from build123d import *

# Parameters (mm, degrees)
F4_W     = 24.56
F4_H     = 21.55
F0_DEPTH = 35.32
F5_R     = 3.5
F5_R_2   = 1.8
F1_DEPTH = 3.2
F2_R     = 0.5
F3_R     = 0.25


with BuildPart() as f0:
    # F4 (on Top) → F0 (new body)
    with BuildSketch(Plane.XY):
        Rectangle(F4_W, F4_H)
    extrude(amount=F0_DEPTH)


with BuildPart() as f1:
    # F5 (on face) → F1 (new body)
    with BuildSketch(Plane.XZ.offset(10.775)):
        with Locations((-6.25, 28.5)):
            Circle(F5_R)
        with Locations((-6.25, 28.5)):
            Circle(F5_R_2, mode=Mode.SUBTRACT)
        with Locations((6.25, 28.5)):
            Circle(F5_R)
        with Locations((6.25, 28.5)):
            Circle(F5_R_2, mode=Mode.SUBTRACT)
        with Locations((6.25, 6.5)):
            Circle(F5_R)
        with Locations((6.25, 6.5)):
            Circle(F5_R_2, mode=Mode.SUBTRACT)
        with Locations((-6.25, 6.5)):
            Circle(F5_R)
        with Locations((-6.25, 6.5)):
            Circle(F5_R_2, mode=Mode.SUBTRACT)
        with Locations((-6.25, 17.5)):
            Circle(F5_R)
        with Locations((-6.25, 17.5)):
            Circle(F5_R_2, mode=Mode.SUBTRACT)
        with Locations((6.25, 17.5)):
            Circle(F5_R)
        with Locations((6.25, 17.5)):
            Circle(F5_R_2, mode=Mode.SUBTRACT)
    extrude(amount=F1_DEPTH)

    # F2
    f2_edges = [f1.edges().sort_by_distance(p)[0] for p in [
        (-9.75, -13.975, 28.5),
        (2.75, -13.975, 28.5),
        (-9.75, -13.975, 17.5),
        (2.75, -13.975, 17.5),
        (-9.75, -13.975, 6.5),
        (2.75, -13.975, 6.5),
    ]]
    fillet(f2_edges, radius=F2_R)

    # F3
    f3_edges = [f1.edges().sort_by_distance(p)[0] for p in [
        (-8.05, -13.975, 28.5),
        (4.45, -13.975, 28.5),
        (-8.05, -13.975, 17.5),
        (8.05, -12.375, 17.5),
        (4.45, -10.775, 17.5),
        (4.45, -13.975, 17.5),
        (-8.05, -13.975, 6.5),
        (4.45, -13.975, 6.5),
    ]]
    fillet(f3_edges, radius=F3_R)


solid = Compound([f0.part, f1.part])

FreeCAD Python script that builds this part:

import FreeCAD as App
import Part
import Sketcher
from FreeCAD import Vector


def edges_at(feature, points):
    """Names of the edges that pass closest to the given points."""
    edges = feature.Shape.Edges
    near = lambda p: min(range(len(edges)), key=lambda i: edges[i].distToShape(Part.Vertex(*p))[0])
    return sorted({f"Edge{near(p) + 1}" for p in points})


def add_polygon(sketch, points):
    """Adds a closed chain of lines whose ends are joined by coincident constraints."""
    first, n = sketch.GeometryCount, len(points)
    for a, b in zip(points, points[1:] + points[:1]):
        sketch.addGeometry(Part.LineSegment(App.Vector(*a, 0), App.Vector(*b, 0)), False)
    for i in range(n):
        sketch.addConstraint(Sketcher.Constraint("Coincident", first + i, 2, first + (i + 1) % n, 1))

doc = App.newDocument("Part")
body = doc.addObject("PartDesign::Body", "Body")

# Sketch on XY plane
sketch1 = doc.addObject("Sketcher::SketchObject", "Sketch")
body.addObject(sketch1)
sketch1.AttachmentSupport = (doc.XY_Plane, [""])
sketch1.MapMode = "FlatFace"
add_polygon(sketch1, [(-12, 11), (-12, -11), (12, -11), (12, 11)])  # lines 0-3
sketch1.addConstraint(Sketcher.Constraint("Vertical", 0))
sketch1.addConstraint(Sketcher.Constraint("Horizontal", 1))
sketch1.addConstraint(Sketcher.Constraint("Vertical", 2))
sketch1.addConstraint(Sketcher.Constraint("Horizontal", 3))
sketch1.addConstraint(Sketcher.Constraint("Symmetric", 0, 2, 2, 2, -1, 1))
sketch1.addConstraint(Sketcher.Constraint("DistanceX", 1, 1, 1, 2, 24.56))
sketch1.addConstraint(Sketcher.Constraint("DistanceY", 0, 2, 0, 1, 21.55))
pad1 = doc.addObject("PartDesign::Pad", "Pad")
body.addObject(pad1)
pad1.Profile = sketch1
pad1.Length = 35.32
body2 = doc.addObject("PartDesign::Body", "Body001")
body2.AllowCompound = True

# Sketch on XZ plane
sketch2 = doc.addObject("Sketcher::SketchObject", "Sketch001")
body2.addObject(sketch2)
sketch2.AttachmentSupport = (doc.getObject("XZ_Plane001"), [""])
sketch2.MapMode = "FlatFace"
sketch2.AttachmentOffset = App.Placement(Vector(0, 0, 10.775), App.Rotation())
sketch2.addGeometry(Part.Circle(Vector(-6.2, 28.5, 0), Vector(0, 0, 1), 3.5), False)
sketch2.addGeometry(Part.Circle(Vector(-6.2, 28.5, 0), Vector(0, 0, 1), 1.8), False)
sketch2.addGeometry(Part.Circle(Vector(6.2, 28.5, 0), Vector(0, 0, 1), 3.5), False)
sketch2.addGeometry(Part.Circle(Vector(6.2, 28.5, 0), Vector(0, 0, 1), 1.8), False)
sketch2.addGeometry(Part.Circle(Vector(6.2, 6.5, 0), Vector(0, 0, 1), 3.5), False)
sketch2.addGeometry(Part.Circle(Vector(6.2, 6.5, 0), Vector(0, 0, 1), 1.8), False)
sketch2.addGeometry(Part.Circle(Vector(-6.2, 6.5, 0), Vector(0, 0, 1), 3.5), False)
sketch2.addGeometry(Part.Circle(Vector(-6.2, 6.5, 0), Vector(0, 0, 1), 1.8), False)
sketch2.addGeometry(Part.Circle(Vector(-6.2, 17.5, 0), Vector(0, 0, 1), 3.5), False)
sketch2.addGeometry(Part.Circle(Vector(-6.2, 17.5, 0), Vector(0, 0, 1), 1.8), False)
sketch2.addGeometry(Part.Circle(Vector(6.2, 17.5, 0), Vector(0, 0, 1), 3.5), False)
sketch2.addGeometry(Part.Circle(Vector(6.2, 17.5, 0), Vector(0, 0, 1), 1.8), False)
sketch2.addConstraint(Sketcher.Constraint("Coincident", 1, 3, 0, 3))
sketch2.addConstraint(Sketcher.Constraint("Coincident", 3, 3, 2, 3))
sketch2.addConstraint(Sketcher.Constraint("Coincident", 5, 3, 4, 3))
sketch2.addConstraint(Sketcher.Constraint("Coincident", 7, 3, 6, 3))
sketch2.addConstraint(Sketcher.Constraint("Coincident", 9, 3, 8, 3))
sketch2.addConstraint(Sketcher.Constraint("Coincident", 11, 3, 10, 3))
sketch2.addConstraint(Sketcher.Constraint("Equal", 0, 2))
sketch2.addConstraint(Sketcher.Constraint("Equal", 1, 3))
sketch2.addConstraint(Sketcher.Constraint("Equal", 2, 4))
sketch2.addConstraint(Sketcher.Constraint("Equal", 3, 5))
sketch2.addConstraint(Sketcher.Constraint("Equal", 4, 6))
sketch2.addConstraint(Sketcher.Constraint("Equal", 5, 7))
sketch2.addConstraint(Sketcher.Constraint("Equal", 6, 8))
sketch2.addConstraint(Sketcher.Constraint("Equal", 7, 9))
sketch2.addConstraint(Sketcher.Constraint("Equal", 8, 10))
sketch2.addConstraint(Sketcher.Constraint("Equal", 9, 11))
sketch2.addConstraint(Sketcher.Constraint("Symmetric", 0, 3, 2, 3, -2))
sketch2.addConstraint(Sketcher.Constraint("Symmetric", 4, 3, 6, 3, -2))
sketch2.addConstraint(Sketcher.Constraint("Symmetric", 8, 3, 10, 3, -2))
sketch2.addConstraint(Sketcher.Constraint("Vertical", 3, 3, 4, 3))
sketch2.addConstraint(Sketcher.Constraint("Vertical", 7, 3, 8, 3))
sketch2.addConstraint(Sketcher.Constraint("Diameter", 0, 7.0))
sketch2.addConstraint(Sketcher.Constraint("Diameter", 1, 3.6))
sketch2.addConstraint(Sketcher.Constraint("DistanceY", 4, 3, 2, 3, 22.0))
sketch2.addConstraint(Sketcher.Constraint("DistanceY", 8, 3, 0, 3, 11.0))
sketch2.addConstraint(Sketcher.Constraint("DistanceY", -1, 1, 0, 3, 28.5))
sketch2.addConstraint(Sketcher.Constraint("DistanceX", 0, 3, 2, 3, 12.5))
pad2 = doc.addObject("PartDesign::Pad", "Pad001")
body2.addObject(pad2)
pad2.Profile = sketch2
pad2.Length = 3.2
doc.recompute()

fillet = doc.addObject("PartDesign::Fillet", "Fillet")
body2.addObject(fillet)
fillet.Base = (pad2, edges_at(pad2, [
    (-9.75, -13.975, 28.5),
    (2.75, -13.975, 28.5),
    (-9.75, -13.975, 17.5),
    (2.75, -13.975, 17.5),
    (-9.75, -13.975, 6.5),
    (2.75, -13.975, 6.5),
]))
fillet.Radius = 0.5
doc.recompute()

fillet2 = doc.addObject("PartDesign::Fillet", "Fillet001")
body2.addObject(fillet2)
fillet2.Base = (fillet, edges_at(fillet, [
    (-8.05, -13.975, 28.5),
    (4.45, -13.975, 28.5),
    (-8.05, -13.975, 17.5),
    (8.05, -12.375, 17.5),
    (4.45, -10.775, 17.5),
    (4.45, -13.975, 17.5),
    (-8.05, -13.975, 6.5),
    (4.45, -13.975, 6.5),
]))
fillet2.Radius = 0.25

doc.recompute()
